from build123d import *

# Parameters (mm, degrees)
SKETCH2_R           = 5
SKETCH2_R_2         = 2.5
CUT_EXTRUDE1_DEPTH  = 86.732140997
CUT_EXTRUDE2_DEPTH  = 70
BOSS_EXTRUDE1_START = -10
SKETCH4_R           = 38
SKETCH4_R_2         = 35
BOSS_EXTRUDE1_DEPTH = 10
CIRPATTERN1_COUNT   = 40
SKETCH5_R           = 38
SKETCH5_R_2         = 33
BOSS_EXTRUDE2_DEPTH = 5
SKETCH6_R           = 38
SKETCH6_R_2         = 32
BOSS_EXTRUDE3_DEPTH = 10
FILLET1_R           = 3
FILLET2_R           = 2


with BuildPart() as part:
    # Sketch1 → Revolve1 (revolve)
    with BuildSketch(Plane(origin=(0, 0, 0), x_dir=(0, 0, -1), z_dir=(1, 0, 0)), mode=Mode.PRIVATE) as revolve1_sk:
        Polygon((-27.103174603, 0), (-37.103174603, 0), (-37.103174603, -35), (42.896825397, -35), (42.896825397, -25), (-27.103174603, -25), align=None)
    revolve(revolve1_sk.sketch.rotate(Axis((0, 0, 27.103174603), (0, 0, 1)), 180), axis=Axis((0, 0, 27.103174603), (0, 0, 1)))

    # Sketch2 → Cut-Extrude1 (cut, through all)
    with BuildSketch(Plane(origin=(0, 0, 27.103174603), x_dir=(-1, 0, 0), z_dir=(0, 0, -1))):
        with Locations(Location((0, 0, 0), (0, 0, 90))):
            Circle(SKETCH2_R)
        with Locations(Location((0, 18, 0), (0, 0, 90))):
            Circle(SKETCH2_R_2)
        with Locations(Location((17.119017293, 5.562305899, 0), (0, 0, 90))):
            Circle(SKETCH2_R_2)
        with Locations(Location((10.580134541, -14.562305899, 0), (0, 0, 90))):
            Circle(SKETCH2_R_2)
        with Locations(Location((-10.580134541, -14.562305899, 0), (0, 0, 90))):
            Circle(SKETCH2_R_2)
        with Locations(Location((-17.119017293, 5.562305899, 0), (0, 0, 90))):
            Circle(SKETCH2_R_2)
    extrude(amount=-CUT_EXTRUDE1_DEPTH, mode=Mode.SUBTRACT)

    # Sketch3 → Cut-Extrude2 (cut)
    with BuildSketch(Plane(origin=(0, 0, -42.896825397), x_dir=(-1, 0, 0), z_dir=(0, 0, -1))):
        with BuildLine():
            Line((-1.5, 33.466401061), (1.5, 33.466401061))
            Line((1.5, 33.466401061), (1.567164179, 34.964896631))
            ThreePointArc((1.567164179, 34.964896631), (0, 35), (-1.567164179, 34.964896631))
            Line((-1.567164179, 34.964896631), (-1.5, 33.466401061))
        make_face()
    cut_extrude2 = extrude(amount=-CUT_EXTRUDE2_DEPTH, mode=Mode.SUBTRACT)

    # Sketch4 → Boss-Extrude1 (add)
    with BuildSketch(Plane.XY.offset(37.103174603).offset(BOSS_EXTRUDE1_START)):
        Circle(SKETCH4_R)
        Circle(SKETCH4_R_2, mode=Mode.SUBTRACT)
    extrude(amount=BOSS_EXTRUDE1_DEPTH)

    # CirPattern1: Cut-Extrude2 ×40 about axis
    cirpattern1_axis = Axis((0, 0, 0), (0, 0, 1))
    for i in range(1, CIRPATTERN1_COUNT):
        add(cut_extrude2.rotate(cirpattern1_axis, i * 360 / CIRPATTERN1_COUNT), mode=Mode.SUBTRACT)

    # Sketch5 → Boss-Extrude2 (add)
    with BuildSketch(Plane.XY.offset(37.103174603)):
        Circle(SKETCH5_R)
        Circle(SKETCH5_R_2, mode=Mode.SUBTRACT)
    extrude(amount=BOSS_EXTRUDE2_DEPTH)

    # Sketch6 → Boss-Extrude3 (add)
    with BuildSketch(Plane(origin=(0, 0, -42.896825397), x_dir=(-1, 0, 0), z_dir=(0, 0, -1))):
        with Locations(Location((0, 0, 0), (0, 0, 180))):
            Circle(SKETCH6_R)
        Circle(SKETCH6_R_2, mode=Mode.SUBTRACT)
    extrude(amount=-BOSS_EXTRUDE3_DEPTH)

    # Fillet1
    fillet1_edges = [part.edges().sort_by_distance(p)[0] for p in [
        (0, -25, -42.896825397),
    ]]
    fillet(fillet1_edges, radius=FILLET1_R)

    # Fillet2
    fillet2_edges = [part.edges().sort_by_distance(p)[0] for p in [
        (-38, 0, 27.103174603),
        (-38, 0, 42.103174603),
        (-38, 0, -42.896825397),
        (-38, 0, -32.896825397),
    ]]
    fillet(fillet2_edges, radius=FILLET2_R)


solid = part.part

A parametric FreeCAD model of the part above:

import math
import FreeCAD as App
import Part
import Sketcher


def edges_at(feature, points):
    """Names of the edges that pass closest to the given points."""
    edges = feature.Shape.Edges
    near = lambda p: min(range(len(edges)), key=lambda i: edges[i].distToShape(Part.Vertex(*p))[0])
    return sorted({f"Edge{near(p) + 1}" for p in points})

doc = App.newDocument("Part")
body = doc.addObject("PartDesign::Body", "Body")

sketch1 = doc.addObject("Sketcher::SketchObject", "Sketch")
body.addObject(sketch1)
sketch1.AttachmentSupport = (doc.YZ_Plane, [""])
sketch1.MapMode = "FlatFace"
sketch1.addGeometry([
    Part.LineSegment(App.Vector(0, 27, 0), App.Vector(0, 37, 0)),
    Part.LineSegment(App.Vector(0, 37, 0), App.Vector(-35, 37, 0)),
    Part.LineSegment(App.Vector(-35, 37, 0), App.Vector(-35, -43, 0)),
    Part.LineSegment(App.Vector(-35, -43, 0), App.Vector(-25, -43, 0)),
    Part.LineSegment(App.Vector(-25, -43, 0), App.Vector(-25, 27, 0)),
    Part.LineSegment(App.Vector(-25, 27, 0), App.Vector(0, 27, 0)),
], False)
sketch1.addConstraint([
    Sketcher.Constraint("Coincident", 0, 2, 1, 1),
    Sketcher.Constraint("Coincident", 1, 2, 2, 1),
    Sketcher.Constraint("Coincident", 2, 2, 3, 1),
    Sketcher.Constraint("Coincident", 3, 2, 4, 1),
    Sketcher.Constraint("Coincident", 4, 2, 5, 1),
    Sketcher.Constraint("Coincident", 5, 2, 0, 1),
    Sketcher.Constraint("Vertical", 0),
    Sketcher.Constraint("Horizontal", 1),
    Sketcher.Constraint("Vertical", 2),
    Sketcher.Constraint("Horizontal", 3),
    Sketcher.Constraint("Vertical", 4),
    Sketcher.Constraint("Horizontal", 5),
    Sketcher.Constraint("PointOnObject", 0, 2, -2),
    Sketcher.Constraint("Equal", 3, 0),
    Sketcher.Constraint("DistanceX", 1, 2, 1, 1, 35.0),
    Sketcher.Constraint("DistanceX", 3, 1, 3, 2, 10.0),
    Sketcher.Constraint("DistanceY", 2, 2, 2, 1, 80.0),
    Sketcher.Constraint("DistanceY", -1, 1, 0, 2, 37.103175),
])
revolution = doc.addObject("PartDesign::Revolution", "Revolution")
body.addObject(revolution)
revolution.Profile = sketch1
revolution.ReferenceAxis = (sketch1, ["V_Axis"])
revolution.Angle = 360

sketch2 = doc.addObject("Sketcher::SketchObject", "Sketch001")
body.addObject(sketch2)
sketch2.AttachmentSupport = (doc.XY_Plane, [""])
sketch2.MapMode = "FlatFace"
sketch2.AttachmentOffset = App.Placement(App.Vector(0, 0, 27.103175), App.Rotation())
sketch2.addGeometry([
    Part.Circle(App.Vector(0, 0, 0), App.Vector(0, 0, 1), 5),
    Part.Circle(App.Vector(0, 18, 0), App.Vector(0, 0, 1), 2.5),
    Part.Circle(App.Vector(-17.1, 5.6, 0), App.Vector(0, 0, 1), 2.5),
    Part.Circle(App.Vector(-10.6, -14.6, 0), App.Vector(0, 0, 1), 2.5),
    Part.Circle(App.Vector(10.6, -14.6, 0), App.Vector(0, 0, 1), 2.5),
    Part.Circle(App.Vector(17.1, 5.6, 0), App.Vector(0, 0, 1), 2.5),
], False)
sketch2.addConstraint([
    Sketcher.Constraint("Coincident", 0, 3, -1, 1),
    Sketcher.Constraint("Equal", 1, 2),
    Sketcher.Constraint("Equal", 2, 3),
    Sketcher.Constraint("Equal", 3, 4),
    Sketcher.Constraint("Equal", 4, 5),
    Sketcher.Constraint("Symmetric", 3, 3, 4, 3, -2),
    Sketcher.Constraint("Symmetric", 2, 3, 5, 3, -2),
    Sketcher.Constraint("PointOnObject", 1, 3, -2),
    Sketcher.Constraint("Diameter", 0, 10.0),
    Sketcher.Constraint("Diameter", 1, 5.0),
    Sketcher.Constraint("DistanceY", -1, 1, 1, 3, 18.0),
    Sketcher.Constraint("DistanceY", 3, 3, 2, 3, 20.124612),
    Sketcher.Constraint("DistanceX", 3, 3, 4, 3, 21.160269),
    Sketcher.Constraint("DistanceX", 2, 3, 4, 3, 27.699152),
    Sketcher.Constraint("DistanceY", -1, 1, 2, 3, 5.562306),
])
pocket1 = doc.addObject("PartDesign::Pocket", "Pocket")
body.addObject(pocket1)
pocket1.Profile = sketch2
pocket1.Type = "ThroughAll"
pocket1.Reversed = True

sketch3 = doc.addObject("Sketcher::SketchObject", "Sketch002")
body.addObject(sketch3)
sketch3.AttachmentSupport = (doc.XY_Plane, [""])
sketch3.MapMode = "FlatFace"
sketch3.AttachmentOffset = App.Placement(App.Vector(0, 0, -42.896825), App.Rotation())
sketch3.addGeometry([
    Part.LineSegment(App.Vector(1.5, 33.5, 0), App.Vector(-1.5, 33.5, 0)),
    Part.LineSegment(App.Vector(-1.5, 33.5, 0), App.Vector(-1.6, 35, 0)),
    Part.ArcOfCircle(Part.Circle(App.Vector(0, 0, 0), App.Vector(0, 0, 1), 35), math.radians(87.43), math.radians(92.57)),
    Part.LineSegment(App.Vector(1.6, 35, 0), App.Vector(1.5, 33.5, 0)),
], False)
sketch3.addConstraint([
    Sketcher.Constraint("Coincident", 0, 2, 1, 1),
    Sketcher.Constraint("Coincident", 1, 2, 2, 2),
    Sketcher.Constraint("Coincident", 2, 1, 3, 1),
    Sketcher.Constraint("Coincident", 3, 2, 0, 1),
    Sketcher.Constraint("Horizontal", 0),
    Sketcher.Constraint("Coincident", 2, 3, -1, 1),
    Sketcher.Constraint("Horizontal", 1, 2, 2, 1),
    Sketcher.Constraint("Equal", 1, 3),
    Sketcher.Constraint("Radius", 2, 35.0),
    Sketcher.Constraint("DistanceX", 0, 2, 0, 1, 3.0),
    Sketcher.Constraint("Distance", 1, 1.5),
    Sketcher.Constraint("DistanceX", 1, 2, 2, 1, 3.134328),
])
pocket2 = doc.addObject("PartDesign::Pocket", "Pocket001")
body.addObject(pocket2)
pocket2.Profile = sketch3
pocket2.Length = 70
pocket2.Reversed = True

sketch4 = doc.addObject("Sketcher::SketchObject", "Sketch003")
body.addObject(sketch4)
sketch4.AttachmentSupport = (doc.XY_Plane, [""])
sketch4.MapMode = "FlatFace"
sketch4.AttachmentOffset = App.Placement(App.Vector(0, 0, 27.103175), App.Rotation())
sketch4.addGeometry([
    Part.Circle(App.Vector(0, 0, 0), App.Vector(0, 0, 1), 38),
    Part.Circle(App.Vector(0, 0, 0), App.Vector(0, 0, 1), 35),
], False)
sketch4.addConstraint([
    Sketcher.Constraint("Coincident", 0, 3, -1, 1),
    Sketcher.Constraint("Coincident", 1, 3, -1, 1),
    Sketcher.Constraint("Diameter", 0, 76.0),
    Sketcher.Constraint("Diameter", 1, 70.0),
])
pad1 = doc.addObject("PartDesign::Pad", "Pad")
body.addObject(pad1)
pad1.Profile = sketch4
pad1.Length = 10
doc.recompute()

polarpattern = doc.addObject("PartDesign::PolarPattern", "PolarPattern")
body.addObject(polarpattern)
polarpattern.Originals = [pocket2]
polarpattern.Axis = (doc.Z_Axis, [""])
polarpattern.Angle = 360
polarpattern.Occurrences = 40
body.Tip = polarpattern

sketch5 = doc.addObject("Sketcher::SketchObject", "Sketch004")
body.addObject(sketch5)
sketch5.AttachmentSupport = (doc.XY_Plane, [""])
sketch5.MapMode = "FlatFace"
sketch5.AttachmentOffset = App.Placement(App.Vector(0, 0, 37.103175), App.Rotation())
sketch5.addGeometry([
    Part.Circle(App.Vector(0, 0, 0), App.Vector(0, 0, 1), 38),
    Part.Circle(App.Vector(0, 0, 0), App.Vector(0, 0, 1), 33),
], False)
sketch5.addConstraint([
    Sketcher.Constraint("Coincident", 0, 3, -1, 1),
    Sketcher.Constraint("Coincident", 1, 3, -1, 1),
    Sketcher.Constraint("Diameter", 0, 76.0),
    Sketcher.Constraint("Diameter", 1, 66.0),
])
pad2 = doc.addObject("PartDesign::Pad", "Pad001")
body.addObject(pad2)
pad2.Profile = sketch5
pad2.Length = 5

sketch6 = doc.addObject("Sketcher::SketchObject", "Sketch005")
body.addObject(sketch6)
sketch6.AttachmentSupport = (doc.XY_Plane, [""])
sketch6.MapMode = "FlatFace"
sketch6.AttachmentOffset = App.Placement(App.Vector(0, 0, -42.896825), App.Rotation())
sketch6.addGeometry([
    Part.Circle(App.Vector(0, 0, 0), App.Vector(0, 0, 1), 38),
    Part.Circle(App.Vector(0, 0, 0), App.Vector(0, 0, 1), 32),
], False)
sketch6.addConstraint([
    Sketcher.Constraint("Coincident", 0, 3, -1, 1),
    Sketcher.Constraint("Coincident", 1, 3, -1, 1),
    Sketcher.Constraint("Diameter", 0, 76.0),
    Sketcher.Constraint("Diameter", 1, 64.0),
])
pad3 = doc.addObject("PartDesign::Pad", "Pad002")
body.addObject(pad3)
pad3.Profile = sketch6
pad3.Length = 10
doc.recompute()

fillet = doc.addObject("PartDesign::Fillet", "Fillet")
body.addObject(fillet)
fillet.Base = (pad3, edges_at(pad3, [(0, -25, -42.897)]))
fillet.Radius = 3
doc.recompute()

fillet2 = doc.addObject("PartDesign::Fillet", "Fillet001")
body.addObject(fillet2)
fillet2.Base = (fillet, edges_at(fillet, [
    (-38, 0, 27.103),
    (-38, 0, 42.103),
    (-38, 0, -42.897),
    (-38, 0, -32.897),
]))
fillet2.Radius = 2

doc.recompute()
